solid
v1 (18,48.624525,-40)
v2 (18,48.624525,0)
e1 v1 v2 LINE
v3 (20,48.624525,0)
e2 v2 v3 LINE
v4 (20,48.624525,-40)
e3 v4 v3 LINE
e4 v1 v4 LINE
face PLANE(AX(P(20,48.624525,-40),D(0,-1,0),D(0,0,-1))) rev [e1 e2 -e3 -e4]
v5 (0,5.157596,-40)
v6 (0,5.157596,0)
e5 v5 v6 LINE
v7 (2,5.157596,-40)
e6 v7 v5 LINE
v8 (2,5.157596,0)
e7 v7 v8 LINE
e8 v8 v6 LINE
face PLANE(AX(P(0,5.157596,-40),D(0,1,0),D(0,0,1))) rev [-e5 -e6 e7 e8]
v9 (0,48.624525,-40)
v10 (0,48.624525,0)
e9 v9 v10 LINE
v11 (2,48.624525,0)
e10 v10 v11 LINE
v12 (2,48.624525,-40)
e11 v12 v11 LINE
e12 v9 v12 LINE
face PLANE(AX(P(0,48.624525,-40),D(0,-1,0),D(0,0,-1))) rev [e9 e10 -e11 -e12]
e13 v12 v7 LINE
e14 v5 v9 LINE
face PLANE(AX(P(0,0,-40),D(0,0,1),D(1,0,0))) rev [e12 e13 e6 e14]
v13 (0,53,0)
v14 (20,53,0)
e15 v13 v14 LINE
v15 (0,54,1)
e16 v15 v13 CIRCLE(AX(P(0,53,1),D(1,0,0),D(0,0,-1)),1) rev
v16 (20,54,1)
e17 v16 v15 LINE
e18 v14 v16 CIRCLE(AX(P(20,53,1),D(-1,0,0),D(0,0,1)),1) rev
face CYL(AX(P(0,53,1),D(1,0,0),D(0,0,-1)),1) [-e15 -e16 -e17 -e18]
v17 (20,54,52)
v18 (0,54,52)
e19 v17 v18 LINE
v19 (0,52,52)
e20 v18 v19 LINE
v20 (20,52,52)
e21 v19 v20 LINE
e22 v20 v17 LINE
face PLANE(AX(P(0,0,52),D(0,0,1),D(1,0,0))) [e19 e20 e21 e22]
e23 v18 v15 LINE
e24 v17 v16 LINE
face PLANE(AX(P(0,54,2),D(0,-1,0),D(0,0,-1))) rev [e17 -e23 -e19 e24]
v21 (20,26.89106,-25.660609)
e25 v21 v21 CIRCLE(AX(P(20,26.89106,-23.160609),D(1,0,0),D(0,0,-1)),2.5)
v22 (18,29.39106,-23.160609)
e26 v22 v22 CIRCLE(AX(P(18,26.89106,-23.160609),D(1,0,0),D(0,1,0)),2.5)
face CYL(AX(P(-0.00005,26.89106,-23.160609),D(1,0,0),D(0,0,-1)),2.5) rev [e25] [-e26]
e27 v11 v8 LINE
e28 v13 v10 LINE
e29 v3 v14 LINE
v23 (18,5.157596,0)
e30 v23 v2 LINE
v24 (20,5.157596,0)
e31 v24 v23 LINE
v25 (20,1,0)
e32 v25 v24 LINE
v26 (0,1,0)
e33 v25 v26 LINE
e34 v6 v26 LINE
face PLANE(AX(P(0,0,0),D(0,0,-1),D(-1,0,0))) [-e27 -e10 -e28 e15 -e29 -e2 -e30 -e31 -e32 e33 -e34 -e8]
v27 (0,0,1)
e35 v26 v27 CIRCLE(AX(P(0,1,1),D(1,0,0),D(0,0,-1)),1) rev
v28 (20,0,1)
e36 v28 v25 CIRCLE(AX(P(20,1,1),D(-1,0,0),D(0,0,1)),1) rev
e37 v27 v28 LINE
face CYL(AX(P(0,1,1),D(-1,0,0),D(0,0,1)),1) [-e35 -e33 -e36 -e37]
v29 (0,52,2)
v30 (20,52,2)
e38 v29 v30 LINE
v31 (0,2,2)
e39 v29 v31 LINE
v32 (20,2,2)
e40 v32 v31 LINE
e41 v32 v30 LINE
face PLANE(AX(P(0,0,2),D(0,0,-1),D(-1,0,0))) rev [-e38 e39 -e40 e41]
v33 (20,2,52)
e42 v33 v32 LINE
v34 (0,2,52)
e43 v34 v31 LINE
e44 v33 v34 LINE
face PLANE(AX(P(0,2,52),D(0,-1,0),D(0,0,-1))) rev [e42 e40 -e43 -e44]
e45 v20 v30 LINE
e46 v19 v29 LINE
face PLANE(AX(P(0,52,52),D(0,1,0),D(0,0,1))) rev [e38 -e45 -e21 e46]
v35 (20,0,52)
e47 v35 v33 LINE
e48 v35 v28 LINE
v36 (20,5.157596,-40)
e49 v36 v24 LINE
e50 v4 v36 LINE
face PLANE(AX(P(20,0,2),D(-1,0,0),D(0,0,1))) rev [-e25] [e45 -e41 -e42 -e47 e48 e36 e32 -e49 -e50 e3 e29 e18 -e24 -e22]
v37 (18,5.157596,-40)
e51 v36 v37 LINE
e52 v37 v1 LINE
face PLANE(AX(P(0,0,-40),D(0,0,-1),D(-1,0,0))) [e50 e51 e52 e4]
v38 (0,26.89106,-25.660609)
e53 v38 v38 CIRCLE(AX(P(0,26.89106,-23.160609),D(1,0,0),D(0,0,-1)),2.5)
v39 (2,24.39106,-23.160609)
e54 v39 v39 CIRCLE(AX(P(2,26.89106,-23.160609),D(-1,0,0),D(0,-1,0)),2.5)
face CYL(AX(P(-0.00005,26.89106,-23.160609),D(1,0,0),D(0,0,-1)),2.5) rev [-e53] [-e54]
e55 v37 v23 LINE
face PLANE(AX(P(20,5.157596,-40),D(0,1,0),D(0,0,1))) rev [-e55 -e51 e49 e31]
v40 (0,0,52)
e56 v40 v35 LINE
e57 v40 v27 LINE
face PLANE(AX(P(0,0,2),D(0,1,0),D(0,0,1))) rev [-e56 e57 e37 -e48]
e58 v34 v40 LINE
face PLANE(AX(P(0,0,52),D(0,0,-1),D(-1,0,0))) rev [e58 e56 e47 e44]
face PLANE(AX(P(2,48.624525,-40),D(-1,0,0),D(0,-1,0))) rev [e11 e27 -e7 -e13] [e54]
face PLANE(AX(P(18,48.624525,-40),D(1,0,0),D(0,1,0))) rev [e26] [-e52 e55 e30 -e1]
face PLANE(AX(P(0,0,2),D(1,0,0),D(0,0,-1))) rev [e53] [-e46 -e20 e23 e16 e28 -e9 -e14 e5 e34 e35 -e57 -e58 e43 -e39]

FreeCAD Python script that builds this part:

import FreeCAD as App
import Part
import Sketcher

V = App.Vector


def edges_at(feature, points):
    """Names of the edges that pass closest to the given points."""
    edges = feature.Shape.Edges
    near = lambda p: min(range(len(edges)), key=lambda i: edges[i].distToShape(Part.Vertex(*p))[0])
    return sorted({f"Edge{near(p) + 1}" for p in points})

doc = App.newDocument("Part")
body = doc.addObject("PartDesign::Body", "Body")

# Sketch on XY plane
sketch1 = body.newObject("Sketcher::SketchObject", "Sketch")
sketch1.AttachmentSupport = (doc.getObject("XY_Plane"), [""])
sketch1.MapMode = "FlatFace"
sketch1.addGeometry([
    Part.LineSegment(V(0, 54, 0), V(0, 0, 0)),
    Part.LineSegment(V(0, 0, 0), V(20, 0, 0)),
    Part.LineSegment(V(20, 0, 0), V(20, 54, 0)),
    Part.LineSegment(V(20, 54, 0), V(0, 54, 0)),
], False)
sketch1.addConstraint([
    Sketcher.Constraint("Coincident", 0, 2, 1, 1),
    Sketcher.Constraint("Coincident", 1, 2, 2, 1),
    Sketcher.Constraint("Coincident", 2, 2, 3, 1),
    Sketcher.Constraint("Coincident", 3, 2, 0, 1),
    Sketcher.Constraint("Vertical", 0),
    Sketcher.Constraint("Horizontal", 1),
    Sketcher.Constraint("Vertical", 2),
    Sketcher.Constraint("Horizontal", 3),
    Sketcher.Constraint("Coincident", 0, 2, -1, 1),
    Sketcher.Constraint("DistanceX", 1, 1, 1, 2, 20.0),
    Sketcher.Constraint("DistanceY", 0, 2, 0, 1, 54.0),
])
pad1 = body.newObject("PartDesign::Pad", "Pad")
pad1.Profile = sketch1
pad1.Length = 2

# Sketch on XY plane
sketch2 = body.newObject("Sketcher::SketchObject", "Sketch001")
sketch2.AttachmentSupport = (doc.getObject("XY_Plane"), [""])
sketch2.MapMode = "FlatFace"
sketch2.AttachmentOffset = App.Placement(V(0, 0, 2), App.Rotation())
sketch2.addGeometry([
    Part.LineSegment(V(0, 54, 0), V(0, 52, 0)),  # 0
    Part.LineSegment(V(0, 52, 0), V(20, 52, 0)),  # 1
    Part.LineSegment(V(20, 52, 0), V(20, 54, 0)),  # 2
    Part.LineSegment(V(20, 54, 0), V(0, 54, 0)),  # 3
    Part.LineSegment(V(0, 2, 0), V(0, 0, 0)),  # 4
    Part.LineSegment(V(0, 0, 0), V(20, 0, 0)),  # 5
    Part.LineSegment(V(20, 0, 0), V(20, 2, 0)),  # 6
    Part.LineSegment(V(20, 2, 0), V(0, 2, 0)),  # 7
], False)
sketch2.addConstraint([
    Sketcher.Constraint("Coincident", 0, 2, 1, 1),
    Sketcher.Constraint("Coincident", 1, 2, 2, 1),
    Sketcher.Constraint("Coincident", 2, 2, 3, 1),
    Sketcher.Constraint("Coincident", 3, 2, 0, 1),
    Sketcher.Constraint("Coincident", 4, 2, 5, 1),
    Sketcher.Constraint("Coincident", 5, 2, 6, 1),
    Sketcher.Constraint("Coincident", 6, 2, 7, 1),
    Sketcher.Constraint("Coincident", 7, 2, 4, 1),
    Sketcher.Constraint("Vertical", 0),
    Sketcher.Constraint("Horizontal", 1),
    Sketcher.Constraint("Vertical", 2),
    Sketcher.Constraint("Horizontal", 3),
    Sketcher.Constraint("Vertical", 4),
    Sketcher.Constraint("Horizontal", 5),
    Sketcher.Constraint("Vertical", 6),
    Sketcher.Constraint("Horizontal", 7),
    Sketcher.Constraint("Coincident", 4, 2, -1, 1),
    Sketcher.Constraint("PointOnObject", 0, 2, -2),
    Sketcher.Constraint("Vertical", 2, 2, 5, 2),
    Sketcher.Constraint("Equal", 2, 4),
    Sketcher.Constraint("DistanceX", 1, 1, 1, 2, 20.0),
    Sketcher.Constraint("DistanceY", 0, 2, 0, 1, 2.0),
    Sketcher.Constraint("DistanceY", -1, 1, 0, 2, 52.0),
])
pad2 = body.newObject("PartDesign::Pad", "Pad001")
pad2.Profile = sketch2
pad2.Length = 50
doc.recompute()

fillet = body.newObject("PartDesign::Fillet", "Fillet")
fillet.Base = (pad2, edges_at(pad2, [(10, 54, 0), (10, 0, 0)]))
fillet.Radius = 1

# Sketch on XY plane
sketch3 = body.newObject("Sketcher::SketchObject", "Sketch002")
sketch3.AttachmentSupport = (doc.getObject("XY_Plane"), [""])
sketch3.MapMode = "FlatFace"
sketch3.addGeometry([
    Part.LineSegment(V(20, 48.6, 0), V(20, 5.2, 0)),  # 0
    Part.LineSegment(V(20, 5.2, 0), V(18, 5.2, 0)),  # 1
    Part.LineSegment(V(18, 5.2, 0), V(18, 48.6, 0)),  # 2
    Part.LineSegment(V(18, 48.6, 0), V(20, 48.6, 0)),  # 3
    Part.LineSegment(V(2, 48.6, 0), V(2, 5.2, 0)),  # 4
    Part.LineSegment(V(2, 5.2, 0), V(0, 5.2, 0)),  # 5
    Part.LineSegment(V(0, 5.2, 0), V(0, 48.6, 0)),  # 6
    Part.LineSegment(V(0, 48.6, 0), V(2, 48.6, 0)),  # 7
], False)
sketch3.addConstraint([
    Sketcher.Constraint("Coincident", 0, 2, 1, 1),
    Sketcher.Constraint("Coincident", 1, 2, 2, 1),
    Sketcher.Constraint("Coincident", 2, 2, 3, 1),
    Sketcher.Constraint("Coincident", 3, 2, 0, 1),
    Sketcher.Constraint("Coincident", 4, 2, 5, 1),
    Sketcher.Constraint("Coincident", 5, 2, 6, 1),
    Sketcher.Constraint("Coincident", 6, 2, 7, 1),
    Sketcher.Constraint("Coincident", 7, 2, 4, 1),
    Sketcher.Constraint("Vertical", 0),
    Sketcher.Constraint("Horizontal", 1),
    Sketcher.Constraint("Vertical", 2),
    Sketcher.Constraint("Horizontal", 3),
    Sketcher.Constraint("Vertical", 4),
    Sketcher.Constraint("Horizontal", 5),
    Sketcher.Constraint("Vertical", 6),
    Sketcher.Constraint("Horizontal", 7),
    Sketcher.Constraint("PointOnObject", 5, 2, -2),
    Sketcher.Constraint("Horizontal", 1, 2, 4, 2),
    Sketcher.Constraint("Horizontal", 3, 2, 6, 2),
    Sketcher.Constraint("Equal", 3, 5),
    Sketcher.Constraint("DistanceX", 1, 2, 1, 1, 2.0),
    Sketcher.Constraint("DistanceX", -1, 1, 0, 2, 20.0),
    Sketcher.Constraint("DistanceY", 0, 2, 0, 1, 43.466929),
    Sketcher.Constraint("DistanceY", -1, 1, 0, 2, 5.157596),
])
pad3 = body.newObject("PartDesign::Pad", "Pad002")
pad3.Profile = sketch3
pad3.Length = 40
pad3.Reversed = True

# Sketch on YZ plane
sketch4 = body.newObject("Sketcher::SketchObject", "Sketch003")
sketch4.AttachmentSupport = (doc.getObject("YZ_Plane"), [""])
sketch4.MapMode = "FlatFace"
sketch4.AttachmentOffset = App.Placement(V(0, 0, 20), App.Rotation())
sketch4.addGeometry(Part.Circle(V(26.9, -23.2, 0), V(0, 0, 1), 2.5), False)
sketch4.addConstraint([
    Sketcher.Constraint("Diameter", 0, 5.0),
    Sketcher.Constraint("DistanceX", -1, 1, 0, 3, 26.89106),
    Sketcher.Constraint("DistanceY", 0, 3, -1, 1, 23.160609),
])
pocket1 = body.newObject("PartDesign::Pocket", "Pocket")
pocket1.Profile = sketch4
pocket1.Type = "ThroughAll"

doc.recompute()
